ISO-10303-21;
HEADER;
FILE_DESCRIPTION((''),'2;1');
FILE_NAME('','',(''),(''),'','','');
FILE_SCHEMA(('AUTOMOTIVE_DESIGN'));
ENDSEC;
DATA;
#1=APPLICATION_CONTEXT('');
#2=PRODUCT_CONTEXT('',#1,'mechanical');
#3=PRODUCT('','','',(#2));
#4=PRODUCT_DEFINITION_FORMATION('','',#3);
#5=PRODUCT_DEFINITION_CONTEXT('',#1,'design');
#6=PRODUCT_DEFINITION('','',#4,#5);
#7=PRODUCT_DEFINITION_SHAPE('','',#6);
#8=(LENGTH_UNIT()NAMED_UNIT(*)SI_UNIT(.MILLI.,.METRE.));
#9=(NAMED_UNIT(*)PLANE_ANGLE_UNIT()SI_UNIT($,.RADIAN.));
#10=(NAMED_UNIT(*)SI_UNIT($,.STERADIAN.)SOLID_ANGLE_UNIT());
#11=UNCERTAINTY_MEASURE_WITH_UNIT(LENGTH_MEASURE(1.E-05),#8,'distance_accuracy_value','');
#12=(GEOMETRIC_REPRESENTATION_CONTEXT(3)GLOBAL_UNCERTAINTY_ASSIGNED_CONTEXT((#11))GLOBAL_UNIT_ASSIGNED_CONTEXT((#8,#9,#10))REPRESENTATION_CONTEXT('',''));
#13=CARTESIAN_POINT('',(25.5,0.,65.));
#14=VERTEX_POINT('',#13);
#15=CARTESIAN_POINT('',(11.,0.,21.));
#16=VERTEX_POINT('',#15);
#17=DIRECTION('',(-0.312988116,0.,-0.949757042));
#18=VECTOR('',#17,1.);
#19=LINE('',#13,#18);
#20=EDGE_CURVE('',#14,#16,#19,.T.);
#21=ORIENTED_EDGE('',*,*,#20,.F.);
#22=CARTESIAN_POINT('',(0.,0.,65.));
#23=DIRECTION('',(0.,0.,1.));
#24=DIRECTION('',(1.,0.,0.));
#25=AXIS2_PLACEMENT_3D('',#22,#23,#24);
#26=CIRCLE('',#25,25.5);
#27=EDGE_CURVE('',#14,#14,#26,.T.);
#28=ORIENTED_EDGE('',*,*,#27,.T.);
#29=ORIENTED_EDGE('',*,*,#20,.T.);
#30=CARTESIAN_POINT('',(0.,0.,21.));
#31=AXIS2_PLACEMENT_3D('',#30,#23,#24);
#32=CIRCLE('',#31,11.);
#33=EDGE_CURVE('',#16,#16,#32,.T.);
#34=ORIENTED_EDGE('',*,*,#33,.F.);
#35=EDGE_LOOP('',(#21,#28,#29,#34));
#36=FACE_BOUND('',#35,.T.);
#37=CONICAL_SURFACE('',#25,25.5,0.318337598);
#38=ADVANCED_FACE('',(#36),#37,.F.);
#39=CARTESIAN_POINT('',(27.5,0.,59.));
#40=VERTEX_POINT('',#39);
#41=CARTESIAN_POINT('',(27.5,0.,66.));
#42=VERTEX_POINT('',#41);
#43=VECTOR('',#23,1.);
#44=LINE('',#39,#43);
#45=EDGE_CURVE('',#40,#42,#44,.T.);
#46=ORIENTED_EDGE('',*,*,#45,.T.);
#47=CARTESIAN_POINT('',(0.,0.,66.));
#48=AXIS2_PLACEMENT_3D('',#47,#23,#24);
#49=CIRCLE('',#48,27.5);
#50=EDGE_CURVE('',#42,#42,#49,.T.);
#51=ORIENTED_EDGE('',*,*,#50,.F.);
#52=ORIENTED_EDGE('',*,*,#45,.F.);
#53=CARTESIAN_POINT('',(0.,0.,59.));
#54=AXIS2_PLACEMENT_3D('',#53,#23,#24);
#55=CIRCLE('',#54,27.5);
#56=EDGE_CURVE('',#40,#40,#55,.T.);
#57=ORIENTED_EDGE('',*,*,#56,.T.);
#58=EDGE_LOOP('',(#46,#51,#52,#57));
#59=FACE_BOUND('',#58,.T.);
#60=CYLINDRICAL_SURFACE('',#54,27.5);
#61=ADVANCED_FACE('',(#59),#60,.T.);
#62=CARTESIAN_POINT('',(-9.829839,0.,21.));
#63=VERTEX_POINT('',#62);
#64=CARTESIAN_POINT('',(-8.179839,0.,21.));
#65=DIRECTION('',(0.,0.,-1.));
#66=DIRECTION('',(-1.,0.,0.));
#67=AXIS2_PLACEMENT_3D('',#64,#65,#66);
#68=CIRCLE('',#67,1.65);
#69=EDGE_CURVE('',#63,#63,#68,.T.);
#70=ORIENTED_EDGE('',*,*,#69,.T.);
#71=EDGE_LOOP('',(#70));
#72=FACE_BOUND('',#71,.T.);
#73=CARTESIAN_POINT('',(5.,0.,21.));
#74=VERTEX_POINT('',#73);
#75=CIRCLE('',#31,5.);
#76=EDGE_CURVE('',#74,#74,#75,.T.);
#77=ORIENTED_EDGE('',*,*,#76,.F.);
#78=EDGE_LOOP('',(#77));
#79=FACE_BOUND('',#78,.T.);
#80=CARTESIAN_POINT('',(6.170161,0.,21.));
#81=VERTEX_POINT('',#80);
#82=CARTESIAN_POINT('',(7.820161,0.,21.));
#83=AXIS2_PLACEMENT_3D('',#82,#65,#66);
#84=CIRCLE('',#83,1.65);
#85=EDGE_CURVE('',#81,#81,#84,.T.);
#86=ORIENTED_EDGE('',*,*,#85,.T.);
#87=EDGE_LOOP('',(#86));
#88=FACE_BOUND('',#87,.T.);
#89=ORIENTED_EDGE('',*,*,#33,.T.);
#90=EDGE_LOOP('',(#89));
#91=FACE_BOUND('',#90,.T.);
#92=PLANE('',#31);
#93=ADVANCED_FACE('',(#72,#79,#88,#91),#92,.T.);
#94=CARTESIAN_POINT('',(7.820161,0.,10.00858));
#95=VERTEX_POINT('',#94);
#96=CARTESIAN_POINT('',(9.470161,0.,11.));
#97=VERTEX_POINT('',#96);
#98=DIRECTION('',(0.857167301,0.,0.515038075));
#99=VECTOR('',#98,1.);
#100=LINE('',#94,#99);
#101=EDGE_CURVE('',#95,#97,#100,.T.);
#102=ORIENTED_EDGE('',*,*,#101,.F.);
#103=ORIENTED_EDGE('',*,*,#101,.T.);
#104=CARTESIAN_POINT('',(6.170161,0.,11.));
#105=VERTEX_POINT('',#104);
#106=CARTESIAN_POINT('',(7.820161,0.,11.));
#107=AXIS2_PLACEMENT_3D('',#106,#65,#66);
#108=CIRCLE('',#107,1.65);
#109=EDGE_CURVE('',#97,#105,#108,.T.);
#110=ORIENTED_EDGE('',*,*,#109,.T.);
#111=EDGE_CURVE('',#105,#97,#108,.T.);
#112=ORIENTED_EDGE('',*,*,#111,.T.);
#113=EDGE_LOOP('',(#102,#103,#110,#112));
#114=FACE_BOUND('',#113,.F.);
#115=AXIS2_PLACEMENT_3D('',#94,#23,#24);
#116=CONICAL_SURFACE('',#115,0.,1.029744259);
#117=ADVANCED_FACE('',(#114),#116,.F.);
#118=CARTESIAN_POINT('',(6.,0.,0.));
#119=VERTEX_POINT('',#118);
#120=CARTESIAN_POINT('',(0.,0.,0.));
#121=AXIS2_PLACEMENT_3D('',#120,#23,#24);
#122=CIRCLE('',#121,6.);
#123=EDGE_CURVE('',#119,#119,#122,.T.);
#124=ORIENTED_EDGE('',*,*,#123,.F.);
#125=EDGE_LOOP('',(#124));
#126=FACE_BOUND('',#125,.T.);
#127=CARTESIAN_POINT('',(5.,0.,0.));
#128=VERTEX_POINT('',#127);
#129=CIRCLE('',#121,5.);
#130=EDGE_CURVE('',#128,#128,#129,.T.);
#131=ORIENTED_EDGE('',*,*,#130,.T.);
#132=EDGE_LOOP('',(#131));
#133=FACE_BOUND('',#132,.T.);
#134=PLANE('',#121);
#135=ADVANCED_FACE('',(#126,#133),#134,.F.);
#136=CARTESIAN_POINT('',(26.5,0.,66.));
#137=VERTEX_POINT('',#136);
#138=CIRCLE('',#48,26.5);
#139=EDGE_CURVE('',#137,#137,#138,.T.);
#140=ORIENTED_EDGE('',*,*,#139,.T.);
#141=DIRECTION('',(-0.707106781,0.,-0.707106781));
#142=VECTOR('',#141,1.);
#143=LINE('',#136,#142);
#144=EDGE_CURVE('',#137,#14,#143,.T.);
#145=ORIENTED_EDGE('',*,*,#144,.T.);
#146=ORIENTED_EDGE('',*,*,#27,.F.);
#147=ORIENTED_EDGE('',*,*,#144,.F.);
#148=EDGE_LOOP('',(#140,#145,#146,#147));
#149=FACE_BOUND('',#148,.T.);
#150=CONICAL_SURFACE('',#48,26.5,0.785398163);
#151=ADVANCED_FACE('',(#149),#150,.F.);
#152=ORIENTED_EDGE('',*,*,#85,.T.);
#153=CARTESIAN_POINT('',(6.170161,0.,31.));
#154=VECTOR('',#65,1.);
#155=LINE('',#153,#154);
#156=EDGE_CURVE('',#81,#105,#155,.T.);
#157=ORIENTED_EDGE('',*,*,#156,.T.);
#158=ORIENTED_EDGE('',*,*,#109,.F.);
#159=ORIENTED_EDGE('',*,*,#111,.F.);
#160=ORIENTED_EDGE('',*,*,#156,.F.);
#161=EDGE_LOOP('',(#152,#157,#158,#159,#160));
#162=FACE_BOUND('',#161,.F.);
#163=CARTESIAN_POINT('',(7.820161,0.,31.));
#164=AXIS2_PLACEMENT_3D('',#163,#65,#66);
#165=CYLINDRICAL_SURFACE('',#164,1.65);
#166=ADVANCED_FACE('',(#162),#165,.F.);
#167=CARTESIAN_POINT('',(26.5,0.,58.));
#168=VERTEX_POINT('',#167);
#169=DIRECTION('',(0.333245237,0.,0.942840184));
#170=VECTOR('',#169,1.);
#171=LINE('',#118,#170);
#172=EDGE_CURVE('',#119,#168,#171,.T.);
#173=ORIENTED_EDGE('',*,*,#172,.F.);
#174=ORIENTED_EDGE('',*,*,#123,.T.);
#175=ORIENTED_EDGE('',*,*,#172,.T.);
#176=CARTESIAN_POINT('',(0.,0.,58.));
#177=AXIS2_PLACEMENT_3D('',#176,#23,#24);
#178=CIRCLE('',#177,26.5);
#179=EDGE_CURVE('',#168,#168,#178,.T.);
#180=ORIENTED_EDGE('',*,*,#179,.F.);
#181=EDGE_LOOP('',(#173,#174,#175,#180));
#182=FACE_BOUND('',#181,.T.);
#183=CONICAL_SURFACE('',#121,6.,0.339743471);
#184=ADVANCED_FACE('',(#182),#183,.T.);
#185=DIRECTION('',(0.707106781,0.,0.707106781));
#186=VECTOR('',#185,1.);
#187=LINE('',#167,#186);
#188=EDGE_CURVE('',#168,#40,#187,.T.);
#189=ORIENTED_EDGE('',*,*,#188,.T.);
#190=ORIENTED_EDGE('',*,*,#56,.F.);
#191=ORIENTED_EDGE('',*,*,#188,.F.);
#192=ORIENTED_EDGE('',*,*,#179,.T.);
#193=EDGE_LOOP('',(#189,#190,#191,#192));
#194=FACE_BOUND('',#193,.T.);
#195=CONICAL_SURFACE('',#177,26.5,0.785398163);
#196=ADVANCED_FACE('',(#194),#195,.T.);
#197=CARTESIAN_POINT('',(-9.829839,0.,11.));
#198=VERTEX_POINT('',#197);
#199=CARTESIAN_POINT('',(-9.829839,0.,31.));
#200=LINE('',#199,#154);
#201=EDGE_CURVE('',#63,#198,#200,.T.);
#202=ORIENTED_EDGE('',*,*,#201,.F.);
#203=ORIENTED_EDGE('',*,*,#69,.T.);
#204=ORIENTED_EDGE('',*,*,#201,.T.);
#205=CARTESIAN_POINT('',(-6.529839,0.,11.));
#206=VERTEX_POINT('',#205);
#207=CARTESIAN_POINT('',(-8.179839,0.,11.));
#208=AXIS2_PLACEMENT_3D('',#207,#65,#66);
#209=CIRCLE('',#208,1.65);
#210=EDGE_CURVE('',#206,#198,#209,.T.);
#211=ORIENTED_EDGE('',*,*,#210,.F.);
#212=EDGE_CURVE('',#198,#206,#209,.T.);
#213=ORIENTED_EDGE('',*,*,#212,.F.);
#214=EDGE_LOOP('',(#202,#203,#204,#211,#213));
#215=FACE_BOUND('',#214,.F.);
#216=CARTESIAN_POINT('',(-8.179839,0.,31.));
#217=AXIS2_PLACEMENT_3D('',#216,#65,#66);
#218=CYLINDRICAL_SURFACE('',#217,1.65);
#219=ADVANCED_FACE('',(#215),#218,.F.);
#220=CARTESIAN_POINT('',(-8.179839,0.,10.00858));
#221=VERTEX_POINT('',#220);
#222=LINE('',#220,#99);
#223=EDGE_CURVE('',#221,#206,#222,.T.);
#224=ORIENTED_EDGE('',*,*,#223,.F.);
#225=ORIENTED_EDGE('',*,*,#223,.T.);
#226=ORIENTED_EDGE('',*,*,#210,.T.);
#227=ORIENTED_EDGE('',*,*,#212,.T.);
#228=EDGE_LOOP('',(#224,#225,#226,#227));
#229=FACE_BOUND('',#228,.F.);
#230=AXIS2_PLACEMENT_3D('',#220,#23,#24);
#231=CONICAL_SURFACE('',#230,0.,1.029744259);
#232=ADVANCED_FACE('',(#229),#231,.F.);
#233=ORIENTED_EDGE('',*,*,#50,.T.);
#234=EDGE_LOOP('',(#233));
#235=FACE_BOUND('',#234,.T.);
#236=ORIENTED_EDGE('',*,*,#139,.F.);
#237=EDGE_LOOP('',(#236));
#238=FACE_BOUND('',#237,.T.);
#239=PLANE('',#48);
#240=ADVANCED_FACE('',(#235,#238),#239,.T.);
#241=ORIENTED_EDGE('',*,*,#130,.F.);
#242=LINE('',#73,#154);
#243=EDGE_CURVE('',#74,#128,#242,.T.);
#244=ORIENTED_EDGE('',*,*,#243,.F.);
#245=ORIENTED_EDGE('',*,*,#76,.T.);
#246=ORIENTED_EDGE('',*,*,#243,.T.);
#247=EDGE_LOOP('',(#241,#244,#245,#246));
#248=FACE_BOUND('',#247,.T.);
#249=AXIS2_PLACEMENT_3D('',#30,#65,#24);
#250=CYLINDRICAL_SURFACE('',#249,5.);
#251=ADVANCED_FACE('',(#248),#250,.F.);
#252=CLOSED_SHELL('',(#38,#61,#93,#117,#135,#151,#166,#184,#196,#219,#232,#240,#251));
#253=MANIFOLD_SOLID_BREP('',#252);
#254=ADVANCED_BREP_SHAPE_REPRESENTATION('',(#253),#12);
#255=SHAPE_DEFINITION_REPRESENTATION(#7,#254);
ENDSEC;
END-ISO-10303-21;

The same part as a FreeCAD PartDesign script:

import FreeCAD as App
import Part
import Sketcher

V = App.Vector
Q = App.Units.Quantity


def add_polygon(sketch, points):
    """Adds a closed chain of lines whose ends are joined by coincident constraints."""
    first, n = sketch.GeometryCount, len(points)
    for a, b in zip(points, points[1:] + points[:1]):
        sketch.addGeometry(Part.LineSegment(App.Vector(*a, 0), App.Vector(*b, 0)), False)
    for i in range(n):
        sketch.addConstraint(Sketcher.Constraint("Coincident", first + i, 2, first + (i + 1) % n, 1))

doc = App.newDocument("Part")
params = doc.addObject("Spreadsheet::Sheet", "Params")
for row, (alias, value) in enumerate([
    ("sketch1_width", "1 mm"),
    ("sketch1_width2", "6 mm"),
    ("sketch1_height", "7 mm"),
    ("sketch1_height2", "21 mm"),
    ("revolution_angle", "360 deg"),
    ("sketch2_diameter", "3.3 mm"),
    ("hole_diameter", "3.3 mm"),
    ("hole_depth", "10 mm"),
], start=1):
    params.set(f"A{row}", alias)
    params.set(f"B{row}", "=" + value)
    params.setAlias(f"B{row}", alias)

body = doc.addObject("PartDesign::Body", "Body")

sketch1 = body.newObject("Sketcher::SketchObject", "Sketch")
sketch1.AttachmentSupport = (doc.getObject("XZ_Plane"), [""])
sketch1.MapMode = "FlatFace"
add_polygon(sketch1, [(6, 0), (26.5, 58), (27.5, 59), (27.5, 66), (26.5, 66), (25.5, 65), (11, 21), (5, 21), (5, 0)])
sketch1.addConstraint([
    Sketcher.Constraint("Vertical", 2),
    Sketcher.Constraint("Horizontal", 3),
    Sketcher.Constraint("Horizontal", 6),
    Sketcher.Constraint("Vertical", 7),
    Sketcher.Constraint("Horizontal", 8),
    Sketcher.Constraint("PointOnObject", 7, 2, -1),
    Sketcher.Constraint("Parallel", 1, 4),
    Sketcher.Constraint("Vertical", 0, 2, 3, 2),
    Sketcher.Constraint("Equal", 3, 8),
    Sketcher.Constraint("Equal", 1, 4),
    Sketcher.Constraint("DistanceX", 3, 2, 3, 1, Q("1 mm")),
    Sketcher.Constraint("DistanceX", 6, 2, 6, 1, Q("6 mm")),
    Sketcher.Constraint("DistanceY", 2, 1, 2, 2, Q("7 mm")),
    Sketcher.Constraint("DistanceY", 7, 2, 7, 1, Q("21 mm")),
    Sketcher.Constraint("Angle", 1, Q("45 deg")),
    Sketcher.Constraint("DistanceY", -1, 1, 0, 2, Q("58 mm")),
    Sketcher.Constraint("DistanceX", -1, 1, 5, 2, Q("11 mm")),
    Sketcher.Constraint("DistanceX", -1, 1, 0, 2, Q("26.5 mm")),
])
sketch1.setExpression("Constraints[19]", "Params.sketch1_width")
sketch1.setExpression("Constraints[20]", "Params.sketch1_width2")
sketch1.setExpression("Constraints[21]", "Params.sketch1_height")
sketch1.setExpression("Constraints[22]", "Params.sketch1_height2")
revolution = body.newObject("PartDesign::Revolution", "Revolution")
revolution.Profile = sketch1
revolution.ReferenceAxis = (sketch1, ["V_Axis"])
revolution.setExpression("Angle", "Params.revolution_angle")

sketch2 = body.newObject("Sketcher::SketchObject", "Sketch001")
sketch2.AttachmentSupport = (doc.getObject("XY_Plane"), [""])
sketch2.MapMode = "FlatFace"
sketch2.AttachmentOffset = App.Placement(V(0, 0, 21), App.Rotation())
sketch2.addGeometry([
    Part.Circle(V(-8.2, 0, 0), V(0, 0, 1), 1.6),
    Part.Circle(V(7.8, 0, 0), V(0, 0, 1), 1.6),
], False)
sketch2.addConstraint([
    Sketcher.Constraint("Equal", 0, 1),
    Sketcher.Constraint("PointOnObject", 0, 3, -1),
    Sketcher.Constraint("PointOnObject", 1, 3, -1),
    Sketcher.Constraint("Diameter", 0, Q("3.3 mm")),
    Sketcher.Constraint("DistanceX", 0, 3, 1, 3, Q("16 mm")),
    Sketcher.Constraint("DistanceX", 0, 3, -1, 1, Q("8.179839 mm")),
])
sketch2.setExpression("Constraints[3]", "Params.sketch2_diameter")
doc.recompute()
hole = body.newObject("PartDesign::Hole", "Hole")
hole.Profile = sketch2
hole.ThreadType = "None"
hole.setExpression("Diameter", "Params.hole_diameter")
hole.DepthType = "Dimension"
hole.setExpression("Depth", "Params.hole_depth")
hole.DrillPoint = "Angled"
hole.DrillPointAngle = 118

doc.recompute()
